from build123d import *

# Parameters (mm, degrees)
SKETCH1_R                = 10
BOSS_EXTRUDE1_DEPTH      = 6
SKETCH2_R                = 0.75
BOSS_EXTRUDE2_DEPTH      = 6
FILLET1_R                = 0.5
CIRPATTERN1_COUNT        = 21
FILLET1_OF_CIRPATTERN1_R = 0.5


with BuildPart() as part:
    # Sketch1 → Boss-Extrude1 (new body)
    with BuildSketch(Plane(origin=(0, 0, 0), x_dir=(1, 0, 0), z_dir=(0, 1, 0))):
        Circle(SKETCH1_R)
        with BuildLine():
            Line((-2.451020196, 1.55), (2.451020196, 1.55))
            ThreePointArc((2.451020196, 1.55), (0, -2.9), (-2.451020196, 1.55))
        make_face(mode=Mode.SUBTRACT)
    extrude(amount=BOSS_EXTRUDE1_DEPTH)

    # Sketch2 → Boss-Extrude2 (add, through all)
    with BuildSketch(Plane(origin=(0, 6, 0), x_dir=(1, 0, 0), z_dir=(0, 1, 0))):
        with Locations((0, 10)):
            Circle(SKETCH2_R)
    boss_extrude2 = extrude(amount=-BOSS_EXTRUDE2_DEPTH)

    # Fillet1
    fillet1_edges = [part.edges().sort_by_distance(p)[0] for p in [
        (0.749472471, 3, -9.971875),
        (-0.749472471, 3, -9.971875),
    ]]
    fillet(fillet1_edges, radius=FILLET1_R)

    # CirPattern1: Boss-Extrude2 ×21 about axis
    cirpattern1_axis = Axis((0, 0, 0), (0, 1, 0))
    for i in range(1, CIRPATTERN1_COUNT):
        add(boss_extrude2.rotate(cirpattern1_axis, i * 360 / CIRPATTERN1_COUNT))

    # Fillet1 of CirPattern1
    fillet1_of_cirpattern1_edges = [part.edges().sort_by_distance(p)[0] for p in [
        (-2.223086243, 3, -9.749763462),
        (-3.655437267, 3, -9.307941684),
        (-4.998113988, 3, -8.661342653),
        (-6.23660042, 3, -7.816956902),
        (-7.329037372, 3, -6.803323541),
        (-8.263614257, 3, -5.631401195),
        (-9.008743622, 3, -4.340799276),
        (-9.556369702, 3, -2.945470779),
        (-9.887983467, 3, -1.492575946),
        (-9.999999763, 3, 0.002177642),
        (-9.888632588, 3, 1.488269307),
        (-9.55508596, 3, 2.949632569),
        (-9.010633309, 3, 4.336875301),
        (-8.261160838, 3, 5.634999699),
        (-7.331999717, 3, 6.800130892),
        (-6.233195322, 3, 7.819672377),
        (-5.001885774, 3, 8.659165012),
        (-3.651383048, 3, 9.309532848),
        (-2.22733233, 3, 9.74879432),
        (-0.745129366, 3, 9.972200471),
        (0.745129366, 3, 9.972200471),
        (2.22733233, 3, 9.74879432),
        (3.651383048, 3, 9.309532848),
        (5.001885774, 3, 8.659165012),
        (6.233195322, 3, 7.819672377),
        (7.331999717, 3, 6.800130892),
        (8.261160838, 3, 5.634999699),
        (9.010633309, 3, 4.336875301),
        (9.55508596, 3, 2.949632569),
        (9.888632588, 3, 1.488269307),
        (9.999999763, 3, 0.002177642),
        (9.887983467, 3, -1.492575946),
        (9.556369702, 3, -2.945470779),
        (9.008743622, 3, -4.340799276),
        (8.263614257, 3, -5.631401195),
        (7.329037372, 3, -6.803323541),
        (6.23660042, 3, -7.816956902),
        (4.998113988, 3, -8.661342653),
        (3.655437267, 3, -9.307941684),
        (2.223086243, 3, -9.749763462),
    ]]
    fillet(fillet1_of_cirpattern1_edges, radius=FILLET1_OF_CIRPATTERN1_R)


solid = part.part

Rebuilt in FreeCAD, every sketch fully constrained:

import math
import FreeCAD as App
import Part
import Sketcher
from FreeCAD import Vector


def edges_at(feature, points):
    """Names of the edges that pass closest to the given points."""
    edges = feature.Shape.Edges
    near = lambda p: min(range(len(edges)), key=lambda i: edges[i].distToShape(Part.Vertex(*p))[0])
    return sorted({f"Edge{near(p) + 1}" for p in points})

doc = App.newDocument("Part")
body = doc.addObject("PartDesign::Body", "Body")

# Sketch on XZ plane
sketch1 = doc.addObject("Sketcher::SketchObject", "Sketch")
body.addObject(sketch1)
sketch1.AttachmentSupport = (doc.XZ_Plane, [""])
sketch1.MapMode = "FlatFace"
sketch1.addGeometry([
    Part.Circle(Vector(0, 0, 0), Vector(0, 0, 1), 10),
    Part.ArcOfCircle(Part.Circle(Vector(0, 0, 0), Vector(0, 0, 1), 2.9), math.radians(-32.30884), math.radians(212.30884)),
    Part.LineSegment(Vector(-2.45102, -1.55, 0), Vector(2.45102, -1.55, 0)),
], False)
sketch1.addConstraint([
    Sketcher.Constraint("Coincident", 1, 1, 2, 2),
    Sketcher.Constraint("Coincident", 2, 1, 1, 2),
    Sketcher.Constraint("Horizontal", 2),
    Sketcher.Constraint("Coincident", 0, 3, -1, 1),
    Sketcher.Constraint("Coincident", 1, 3, -1, 1),
    Sketcher.Constraint("Diameter", 0, 20.0),
    Sketcher.Constraint("Radius", 1, 2.9),
    Sketcher.Constraint("DistanceY", 1, 1, -1, 1, 1.55),
])
pad1 = doc.addObject("PartDesign::Pad", "Pad")
body.addObject(pad1)
pad1.Profile = sketch1
pad1.Length = 6
pad1.Reversed = True

# Sketch on XZ plane
sketch2 = doc.addObject("Sketcher::SketchObject", "Sketch001")
body.addObject(sketch2)
sketch2.AttachmentSupport = (doc.XZ_Plane, [""])
sketch2.MapMode = "FlatFace"
sketch2.AttachmentOffset = App.Placement(Vector(0, 0, -6), App.Rotation())
sketch2.addGeometry(Part.Circle(Vector(0, -10, 0), Vector(0, 0, 1), 0.75), False)
sketch2.addConstraint([
    Sketcher.Constraint("PointOnObject", 0, 3, -2),
    Sketcher.Constraint("Diameter", 0, 1.5),
    Sketcher.Constraint("DistanceY", 0, 3, -1, 1, 10.0),
])
pad2 = doc.addObject("PartDesign::Pad", "Pad001")
body.addObject(pad2)
pad2.Profile = sketch2
pad2.Type = "UpToLast"
doc.recompute()

fillet = doc.addObject("PartDesign::Fillet", "Fillet")
body.addObject(fillet)
fillet.Base = (pad2, edges_at(pad2, [(0.749, 3, -9.972), (-0.749, 3, -9.972)]))
fillet.Radius = 0.5
doc.recompute()

polarpattern = doc.addObject("PartDesign::PolarPattern", "PolarPattern")
body.addObject(polarpattern)
polarpattern.Originals = [pad2]
polarpattern.Axis = (doc.Y_Axis, [""])
polarpattern.Angle = 360
polarpattern.Occurrences = 21
body.Tip = polarpattern
doc.recompute()

fillet2 = doc.addObject("PartDesign::Fillet", "Fillet001")
body.addObject(fillet2)
fillet2.Base = (polarpattern, edges_at(polarpattern, [
    (-2.223, 3, -9.75),
    (-3.655, 3, -9.308),
    (-4.998, 3, -8.661),
    (-6.237, 3, -7.817),
    (-7.329, 3, -6.803),
    (-8.264, 3, -5.631),
    (-9.009, 3, -4.341),
    (-9.556, 3, -2.945),
    (-9.888, 3, -1.493),
    (-10, 3, 0.002),
    (-9.889, 3, 1.488),
    (-9.555, 3, 2.95),
    (-9.011, 3, 4.337),
    (-8.261, 3, 5.635),
    (-7.332, 3, 6.8),
    (-6.233, 3, 7.82),
    (-5.002, 3, 8.659),
    (-3.651, 3, 9.31),
    (-2.227, 3, 9.749),
    (-0.745, 3, 9.972),
    (0.745, 3, 9.972),
    (2.227, 3, 9.749),
    (3.651, 3, 9.31),
    (5.002, 3, 8.659),
    (6.233, 3, 7.82),
    (7.332, 3, 6.8),
    (8.261, 3, 5.635),
    (9.011, 3, 4.337),
    (9.555, 3, 2.95),
    (9.889, 3, 1.488),
    (10, 3, 0.002),
    (9.888, 3, -1.493),
    (9.556, 3, -2.945),
    (9.009, 3, -4.341),
    (8.264, 3, -5.631),
    (7.329, 3, -6.803),
    (6.237, 3, -7.817),
    (4.998, 3, -8.661),
    (3.655, 3, -9.308),
    (2.223, 3, -9.75),
]))
fillet2.Radius = 0.5

doc.recompute()
